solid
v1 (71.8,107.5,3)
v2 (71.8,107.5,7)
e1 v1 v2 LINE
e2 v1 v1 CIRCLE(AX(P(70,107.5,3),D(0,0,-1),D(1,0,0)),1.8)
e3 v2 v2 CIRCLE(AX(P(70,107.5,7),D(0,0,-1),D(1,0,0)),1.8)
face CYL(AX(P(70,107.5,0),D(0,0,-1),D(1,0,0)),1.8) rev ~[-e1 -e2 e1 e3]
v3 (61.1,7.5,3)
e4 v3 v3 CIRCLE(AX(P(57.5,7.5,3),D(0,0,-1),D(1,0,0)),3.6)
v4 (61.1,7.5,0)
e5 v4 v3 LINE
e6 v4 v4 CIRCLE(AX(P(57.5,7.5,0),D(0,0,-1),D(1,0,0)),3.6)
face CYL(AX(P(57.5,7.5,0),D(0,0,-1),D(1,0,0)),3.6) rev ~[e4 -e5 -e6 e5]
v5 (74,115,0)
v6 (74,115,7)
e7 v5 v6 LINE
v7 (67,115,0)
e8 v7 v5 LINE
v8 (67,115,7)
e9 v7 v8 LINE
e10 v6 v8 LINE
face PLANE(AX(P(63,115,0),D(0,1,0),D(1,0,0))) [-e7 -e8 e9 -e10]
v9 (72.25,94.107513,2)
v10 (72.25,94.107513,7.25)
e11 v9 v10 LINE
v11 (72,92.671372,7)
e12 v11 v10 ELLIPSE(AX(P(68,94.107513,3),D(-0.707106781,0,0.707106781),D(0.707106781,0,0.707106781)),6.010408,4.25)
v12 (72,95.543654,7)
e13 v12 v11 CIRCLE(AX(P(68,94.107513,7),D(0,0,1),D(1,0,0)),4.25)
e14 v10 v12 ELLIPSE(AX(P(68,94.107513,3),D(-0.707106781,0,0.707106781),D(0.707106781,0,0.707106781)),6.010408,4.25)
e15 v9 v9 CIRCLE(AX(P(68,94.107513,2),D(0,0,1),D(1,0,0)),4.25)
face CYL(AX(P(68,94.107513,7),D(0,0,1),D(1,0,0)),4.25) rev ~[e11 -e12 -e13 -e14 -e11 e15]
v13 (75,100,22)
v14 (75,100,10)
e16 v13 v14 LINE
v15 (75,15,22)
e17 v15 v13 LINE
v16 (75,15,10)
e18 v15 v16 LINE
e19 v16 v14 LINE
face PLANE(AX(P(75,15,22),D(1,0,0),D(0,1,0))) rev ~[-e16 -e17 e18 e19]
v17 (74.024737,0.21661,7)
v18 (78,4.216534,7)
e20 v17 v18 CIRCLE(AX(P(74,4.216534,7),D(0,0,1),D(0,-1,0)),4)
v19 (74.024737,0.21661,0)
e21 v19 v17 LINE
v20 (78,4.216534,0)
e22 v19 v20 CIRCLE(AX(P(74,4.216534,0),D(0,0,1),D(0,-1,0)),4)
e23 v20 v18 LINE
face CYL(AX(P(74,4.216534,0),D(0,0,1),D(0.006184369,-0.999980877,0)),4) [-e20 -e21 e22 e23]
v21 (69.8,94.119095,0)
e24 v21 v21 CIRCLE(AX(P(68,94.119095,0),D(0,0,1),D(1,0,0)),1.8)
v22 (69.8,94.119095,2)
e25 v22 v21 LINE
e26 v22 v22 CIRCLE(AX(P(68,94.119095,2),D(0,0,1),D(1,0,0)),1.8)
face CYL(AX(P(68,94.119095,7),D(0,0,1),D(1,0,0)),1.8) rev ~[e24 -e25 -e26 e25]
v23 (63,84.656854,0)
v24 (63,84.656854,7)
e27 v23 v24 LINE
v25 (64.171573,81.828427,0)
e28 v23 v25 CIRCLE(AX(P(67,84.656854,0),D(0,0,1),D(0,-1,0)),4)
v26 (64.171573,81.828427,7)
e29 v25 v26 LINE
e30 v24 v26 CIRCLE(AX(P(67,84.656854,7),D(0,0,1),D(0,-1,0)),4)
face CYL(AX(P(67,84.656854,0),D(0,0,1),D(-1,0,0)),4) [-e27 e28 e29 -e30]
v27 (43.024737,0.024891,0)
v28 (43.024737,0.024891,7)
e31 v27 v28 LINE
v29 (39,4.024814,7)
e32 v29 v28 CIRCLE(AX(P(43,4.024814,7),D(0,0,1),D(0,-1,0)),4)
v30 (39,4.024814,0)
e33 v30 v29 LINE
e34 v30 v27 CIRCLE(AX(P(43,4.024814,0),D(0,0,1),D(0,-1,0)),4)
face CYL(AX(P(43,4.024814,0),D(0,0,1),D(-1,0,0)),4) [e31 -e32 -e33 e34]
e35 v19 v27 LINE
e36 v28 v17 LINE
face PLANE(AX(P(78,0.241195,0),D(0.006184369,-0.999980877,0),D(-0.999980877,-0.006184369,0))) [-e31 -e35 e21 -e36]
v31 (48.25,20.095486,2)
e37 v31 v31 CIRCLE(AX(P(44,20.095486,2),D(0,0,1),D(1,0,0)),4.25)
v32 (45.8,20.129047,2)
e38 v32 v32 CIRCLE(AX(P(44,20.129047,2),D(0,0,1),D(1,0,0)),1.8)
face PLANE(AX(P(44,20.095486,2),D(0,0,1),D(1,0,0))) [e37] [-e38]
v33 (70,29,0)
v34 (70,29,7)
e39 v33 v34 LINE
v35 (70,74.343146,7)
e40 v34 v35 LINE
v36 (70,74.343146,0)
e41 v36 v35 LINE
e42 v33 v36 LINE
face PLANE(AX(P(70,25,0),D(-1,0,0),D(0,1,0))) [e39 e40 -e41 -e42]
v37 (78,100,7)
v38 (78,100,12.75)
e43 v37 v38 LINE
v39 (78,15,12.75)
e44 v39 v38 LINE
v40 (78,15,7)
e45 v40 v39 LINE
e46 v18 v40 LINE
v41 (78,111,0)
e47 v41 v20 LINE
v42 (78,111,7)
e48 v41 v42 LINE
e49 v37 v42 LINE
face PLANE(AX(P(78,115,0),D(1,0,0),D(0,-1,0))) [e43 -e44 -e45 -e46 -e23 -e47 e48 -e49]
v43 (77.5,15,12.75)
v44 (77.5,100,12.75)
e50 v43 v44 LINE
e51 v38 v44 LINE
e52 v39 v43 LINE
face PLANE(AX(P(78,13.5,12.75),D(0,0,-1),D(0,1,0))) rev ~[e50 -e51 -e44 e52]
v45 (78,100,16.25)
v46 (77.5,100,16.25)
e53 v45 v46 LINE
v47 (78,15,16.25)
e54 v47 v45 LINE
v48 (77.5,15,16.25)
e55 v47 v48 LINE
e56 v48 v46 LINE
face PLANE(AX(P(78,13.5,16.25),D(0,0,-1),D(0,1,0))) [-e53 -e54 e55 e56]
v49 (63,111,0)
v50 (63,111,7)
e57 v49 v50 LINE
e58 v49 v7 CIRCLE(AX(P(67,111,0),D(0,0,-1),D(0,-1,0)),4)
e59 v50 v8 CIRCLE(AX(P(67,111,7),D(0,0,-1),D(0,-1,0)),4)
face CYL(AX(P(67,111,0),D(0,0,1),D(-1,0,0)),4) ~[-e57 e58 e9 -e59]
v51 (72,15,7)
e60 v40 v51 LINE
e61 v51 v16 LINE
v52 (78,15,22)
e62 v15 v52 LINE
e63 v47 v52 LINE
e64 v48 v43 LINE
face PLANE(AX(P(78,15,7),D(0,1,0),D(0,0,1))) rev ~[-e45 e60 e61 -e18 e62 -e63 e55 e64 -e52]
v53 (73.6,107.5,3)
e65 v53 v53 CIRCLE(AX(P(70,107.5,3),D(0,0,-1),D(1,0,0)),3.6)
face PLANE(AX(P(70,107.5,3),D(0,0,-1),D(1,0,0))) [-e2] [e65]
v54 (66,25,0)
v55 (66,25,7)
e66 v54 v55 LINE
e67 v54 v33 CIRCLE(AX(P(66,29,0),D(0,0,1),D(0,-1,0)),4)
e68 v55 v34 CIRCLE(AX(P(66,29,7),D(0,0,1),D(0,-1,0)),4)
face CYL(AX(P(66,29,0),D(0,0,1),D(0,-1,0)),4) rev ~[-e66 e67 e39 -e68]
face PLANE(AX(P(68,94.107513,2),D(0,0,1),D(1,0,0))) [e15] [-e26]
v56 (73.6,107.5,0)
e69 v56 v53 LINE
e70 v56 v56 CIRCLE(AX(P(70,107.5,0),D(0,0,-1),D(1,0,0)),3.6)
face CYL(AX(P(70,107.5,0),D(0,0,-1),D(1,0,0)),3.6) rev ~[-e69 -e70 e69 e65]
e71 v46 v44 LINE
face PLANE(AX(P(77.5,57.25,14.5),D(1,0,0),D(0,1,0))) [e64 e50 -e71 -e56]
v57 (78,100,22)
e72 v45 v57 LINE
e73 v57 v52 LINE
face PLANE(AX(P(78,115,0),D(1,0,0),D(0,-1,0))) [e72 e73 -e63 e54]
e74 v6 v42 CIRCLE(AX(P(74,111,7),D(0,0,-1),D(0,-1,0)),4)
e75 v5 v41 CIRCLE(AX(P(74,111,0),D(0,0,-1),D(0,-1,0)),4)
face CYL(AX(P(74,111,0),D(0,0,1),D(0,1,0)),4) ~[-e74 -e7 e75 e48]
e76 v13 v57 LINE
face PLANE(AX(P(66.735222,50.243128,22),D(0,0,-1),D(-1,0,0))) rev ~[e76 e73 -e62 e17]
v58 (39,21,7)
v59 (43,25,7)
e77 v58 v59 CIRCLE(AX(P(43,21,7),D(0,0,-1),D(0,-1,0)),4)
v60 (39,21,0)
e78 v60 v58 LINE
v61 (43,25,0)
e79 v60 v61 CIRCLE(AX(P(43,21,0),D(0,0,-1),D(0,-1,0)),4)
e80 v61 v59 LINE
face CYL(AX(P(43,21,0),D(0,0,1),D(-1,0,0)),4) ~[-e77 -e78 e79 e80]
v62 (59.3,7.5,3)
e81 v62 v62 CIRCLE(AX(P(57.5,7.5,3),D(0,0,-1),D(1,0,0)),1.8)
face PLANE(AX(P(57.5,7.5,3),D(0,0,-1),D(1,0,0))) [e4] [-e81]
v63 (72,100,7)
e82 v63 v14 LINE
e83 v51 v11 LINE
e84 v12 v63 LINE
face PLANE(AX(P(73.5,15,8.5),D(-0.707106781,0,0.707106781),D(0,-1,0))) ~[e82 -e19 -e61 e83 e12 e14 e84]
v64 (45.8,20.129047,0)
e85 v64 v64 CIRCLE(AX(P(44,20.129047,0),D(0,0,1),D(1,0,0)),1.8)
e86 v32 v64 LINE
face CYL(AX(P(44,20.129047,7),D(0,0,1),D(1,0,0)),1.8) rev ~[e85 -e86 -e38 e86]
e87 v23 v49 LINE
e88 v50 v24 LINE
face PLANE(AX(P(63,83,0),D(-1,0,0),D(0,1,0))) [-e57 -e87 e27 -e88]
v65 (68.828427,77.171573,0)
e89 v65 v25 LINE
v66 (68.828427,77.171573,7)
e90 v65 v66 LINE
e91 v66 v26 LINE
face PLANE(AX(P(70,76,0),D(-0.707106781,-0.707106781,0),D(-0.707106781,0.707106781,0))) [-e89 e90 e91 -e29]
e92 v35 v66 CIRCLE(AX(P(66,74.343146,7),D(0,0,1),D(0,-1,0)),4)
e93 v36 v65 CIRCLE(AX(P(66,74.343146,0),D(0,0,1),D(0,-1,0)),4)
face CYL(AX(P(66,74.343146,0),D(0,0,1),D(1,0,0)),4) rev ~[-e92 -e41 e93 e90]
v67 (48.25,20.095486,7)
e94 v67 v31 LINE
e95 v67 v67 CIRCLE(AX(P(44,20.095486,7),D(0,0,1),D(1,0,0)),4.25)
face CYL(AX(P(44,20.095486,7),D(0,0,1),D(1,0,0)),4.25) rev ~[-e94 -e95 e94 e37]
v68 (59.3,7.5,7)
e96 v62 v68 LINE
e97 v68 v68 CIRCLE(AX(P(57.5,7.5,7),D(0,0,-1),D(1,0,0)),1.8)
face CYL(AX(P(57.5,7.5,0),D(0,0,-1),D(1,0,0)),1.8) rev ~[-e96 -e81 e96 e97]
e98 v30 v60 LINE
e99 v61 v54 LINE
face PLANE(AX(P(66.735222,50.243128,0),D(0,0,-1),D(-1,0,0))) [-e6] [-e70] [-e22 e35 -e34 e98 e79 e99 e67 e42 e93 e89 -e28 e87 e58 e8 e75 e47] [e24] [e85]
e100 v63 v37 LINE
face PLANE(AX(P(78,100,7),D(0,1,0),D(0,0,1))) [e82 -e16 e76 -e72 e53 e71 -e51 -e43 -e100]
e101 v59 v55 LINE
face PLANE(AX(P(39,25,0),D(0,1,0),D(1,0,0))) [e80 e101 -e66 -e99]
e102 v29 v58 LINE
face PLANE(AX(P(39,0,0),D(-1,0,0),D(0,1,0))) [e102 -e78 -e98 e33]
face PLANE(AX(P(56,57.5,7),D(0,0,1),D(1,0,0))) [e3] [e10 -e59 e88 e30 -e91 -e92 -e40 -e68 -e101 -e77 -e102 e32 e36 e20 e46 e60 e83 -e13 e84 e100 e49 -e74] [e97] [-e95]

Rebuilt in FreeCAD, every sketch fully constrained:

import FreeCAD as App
import Part
import Sketcher
Q = App.Units.Quantity


def edges_at(feature, points):
    """Names of the edges that pass closest to the given points."""
    edges = feature.Shape.Edges
    near = lambda p: min(range(len(edges)), key=lambda i: edges[i].distToShape(Part.Vertex(*p))[0])
    return sorted({f"Edge{near(p) + 1}" for p in points})

doc = App.newDocument("Part")
params = doc.addObject("Spreadsheet::Sheet", "Params")
for row, (alias, value) in enumerate([
    ("sketch1_width", "15 mm"),
    ("sketch1_width2", "31 mm"),
    ("sketch1_height", "25 mm"),
    ("sketch1_height2", "32 mm"),
    ("sketch1_height3", "51 mm"),
    ("pad1_length", "22 mm"),
    ("sketch2_width", "16 mm"),
    ("sketch3_width", "38 mm"),
    ("sketch3_height", "85 mm"),
    ("pocket2_length", "15 mm"),
    ("sketch4_diameter", "3.6 mm"),
    ("sketch5_diameter", "7.2 mm"),
    ("pocket4_length", "3 mm"),
    ("fillet_radius", "4 mm"),
    ("fillet2_radius", "4 mm"),
    ("sketch6_width", "87.5 mm"),
    ("sketch6_height", "3.5 mm"),
    ("pocket5_length", "0.5 mm"),
    ("sketch7_diameter", "3.6 mm"),
    ("sketch8_diameter", "7.2 mm"),
    ("pocket7_length", "3 mm"),
    ("fillet3_radius", "4 mm"),
    ("chamfer_size", "3 mm"),
    ("sketch9_diameter", "8.5 mm"),
    ("pocket8_length", "10 mm"),
], start=1):
    params.set(f"A{row}", alias)
    params.set(f"B{row}", "=" + value)
    params.setAlias(f"B{row}", alias)

body = doc.addObject("PartDesign::Body", "Body")

# Sketch on XY plane
sketch1 = doc.addObject("Sketcher::SketchObject", "Sketch")
body.addObject(sketch1)
sketch1.AttachmentSupport = (doc.XY_Plane, [""])
sketch1.MapMode = "FlatFace"
sketch1.addGeometry([
    Part.LineSegment(App.Vector(39, 25, 0), App.Vector(39, 0, 0)),  # 0
    Part.LineSegment(App.Vector(39, 0, 0), App.Vector(78, 0, 0)),  # 1
    Part.LineSegment(App.Vector(78, 0, 0), App.Vector(78, 115, 0)),  # 2
    Part.LineSegment(App.Vector(78, 115, 0), App.Vector(63, 115, 0)),  # 3
    Part.LineSegment(App.Vector(63, 115, 0), App.Vector(63, 83, 0)),  # 4
    Part.LineSegment(App.Vector(63, 83, 0), App.Vector(70, 76, 0)),  # 5
    Part.LineSegment(App.Vector(70, 76, 0), App.Vector(70, 25, 0)),  # 6
    Part.LineSegment(App.Vector(70, 25, 0), App.Vector(39, 25, 0)),  # 7
], False)
sketch1.addConstraint([
    Sketcher.Constraint("Coincident", 0, 2, 1, 1),
    Sketcher.Constraint("Coincident", 1, 2, 2, 1),
    Sketcher.Constraint("Coincident", 2, 2, 3, 1),
    Sketcher.Constraint("Coincident", 3, 2, 4, 1),
    Sketcher.Constraint("Coincident", 4, 2, 5, 1),
    Sketcher.Constraint("Coincident", 5, 2, 6, 1),
    Sketcher.Constraint("Coincident", 6, 2, 7, 1),
    Sketcher.Constraint("Coincident", 7, 2, 0, 1),
    Sketcher.Constraint("Vertical", 0),
    Sketcher.Constraint("Vertical", 2),
    Sketcher.Constraint("Horizontal", 3),
    Sketcher.Constraint("Vertical", 4),
    Sketcher.Constraint("Vertical", 6),
    Sketcher.Constraint("Horizontal", 7),
    Sketcher.Constraint("PointOnObject", 0, 2, -1),
    Sketcher.Constraint("DistanceX", 3, 2, 3, 1, Q("15 mm")),
    Sketcher.Constraint("DistanceX", 7, 2, 7, 1, Q("31 mm")),
    Sketcher.Constraint("DistanceY", 0, 2, 0, 1, Q("25 mm")),
    Sketcher.Constraint("DistanceY", 4, 2, 4, 1, Q("32 mm")),
    Sketcher.Constraint("DistanceY", 6, 2, 6, 1, Q("51 mm")),
    Sketcher.Constraint("Angle", 5, Q("-45 deg")),
    Sketcher.Constraint("DistanceX", -1, 1, 0, 2, Q("39 mm")),
    Sketcher.Constraint("DistanceX", -1, 1, 1, 2, Q("78 mm")),
    Sketcher.Constraint("DistanceY", 2, 1, 2, 2, Q("114.758805 mm")),
])
sketch1.setExpression("Constraints[15]", "Params.sketch1_width")
sketch1.setExpression("Constraints[16]", "Params.sketch1_width2")
sketch1.setExpression("Constraints[17]", "Params.sketch1_height")
sketch1.setExpression("Constraints[18]", "Params.sketch1_height2")
sketch1.setExpression("Constraints[19]", "Params.sketch1_height3")
pad1 = doc.addObject("PartDesign::Pad", "Pad")
body.addObject(pad1)
pad1.Profile = sketch1
pad1.setExpression("Length", "Params.pad1_length")

# Sketch on YZ plane
sketch2 = doc.addObject("Sketcher::SketchObject", "Sketch001")
body.addObject(sketch2)
sketch2.AttachmentSupport = (doc.YZ_Plane, [""])
sketch2.MapMode = "FlatFace"
sketch2.AttachmentOffset = App.Placement(App.Vector(0, 0, 78), App.Rotation())
sketch2.addGeometry([
    Part.LineSegment(App.Vector(-1, 23, 0), App.Vector(-1, 7, 0)),  # 0
    Part.LineSegment(App.Vector(-1, 7, 0), App.Vector(15, 7, 0)),  # 1
    Part.LineSegment(App.Vector(15, 7, 0), App.Vector(15, 23, 0)),  # 2
    Part.LineSegment(App.Vector(15, 23, 0), App.Vector(-1, 23, 0)),  # 3
    Part.LineSegment(App.Vector(100, 23, 0), App.Vector(100, 7, 0)),  # 4
    Part.LineSegment(App.Vector(100, 7, 0), App.Vector(116, 7, 0)),  # 5
    Part.LineSegment(App.Vector(116, 7, 0), App.Vector(116, 23, 0)),  # 6
    Part.LineSegment(App.Vector(116, 23, 0), App.Vector(100, 23, 0)),  # 7
], False)
sketch2.addConstraint([
    Sketcher.Constraint("Coincident", 0, 2, 1, 1),
    Sketcher.Constraint("Coincident", 1, 2, 2, 1),
    Sketcher.Constraint("Coincident", 2, 2, 3, 1),
    Sketcher.Constraint("Coincident", 3, 2, 0, 1),
    Sketcher.Constraint("Coincident", 4, 2, 5, 1),
    Sketcher.Constraint("Coincident", 5, 2, 6, 1),
    Sketcher.Constraint("Coincident", 6, 2, 7, 1),
    Sketcher.Constraint("Coincident", 7, 2, 4, 1),
    Sketcher.Constraint("Vertical", 0),
    Sketcher.Constraint("Horizontal", 1),
    Sketcher.Constraint("Vertical", 2),
    Sketcher.Constraint("Horizontal", 3),
    Sketcher.Constraint("Vertical", 4),
    Sketcher.Constraint("Horizontal", 5),
    Sketcher.Constraint("Vertical", 6),
    Sketcher.Constraint("Horizontal", 7),
    Sketcher.Constraint("Horizontal", 1, 2, 4, 2),
    Sketcher.Constraint("Horizontal", 3, 2, 6, 2),
    Sketcher.Constraint("Equal", 3, 5),
    Sketcher.Constraint("Equal", 7, 0),
    Sketcher.Constraint("DistanceX", 1, 1, 1, 2, Q("16 mm")),
    Sketcher.Constraint("DistanceX", 0, 2, -1, 1, Q("1 mm")),
    Sketcher.Constraint("DistanceY", -1, 1, 0, 2, Q("7 mm")),
    Sketcher.Constraint("DistanceX", -1, 1, 4, 2, Q("100 mm")),
])
sketch2.setExpression("Constraints[20]", "Params.sketch2_width")
pocket1 = doc.addObject("PartDesign::Pocket", "Pocket")
body.addObject(pocket1)
pocket1.Profile = sketch2
pocket1.Type = "ThroughAll"

# Sketch on XY plane
sketch3 = doc.addObject("Sketcher::SketchObject", "Sketch002")
body.addObject(sketch3)
sketch3.AttachmentSupport = (doc.XY_Plane, [""])
sketch3.MapMode = "FlatFace"
sketch3.AttachmentOffset = App.Placement(App.Vector(0, 0, 22), App.Rotation())
sketch3.addGeometry([
    Part.LineSegment(App.Vector(37, 100, 0), App.Vector(37, 15, 0)),
    Part.LineSegment(App.Vector(37, 15, 0), App.Vector(75, 15, 0)),
    Part.LineSegment(App.Vector(75, 15, 0), App.Vector(75, 100, 0)),
    Part.LineSegment(App.Vector(75, 100, 0), App.Vector(37, 100, 0)),
], False)
sketch3.addConstraint([
    Sketcher.Constraint("Coincident", 0, 2, 1, 1),
    Sketcher.Constraint("Coincident", 1, 2, 2, 1),
    Sketcher.Constraint("Coincident", 2, 2, 3, 1),
    Sketcher.Constraint("Coincident", 3, 2, 0, 1),
    Sketcher.Constraint("Vertical", 0),
    Sketcher.Constraint("Horizontal", 1),
    Sketcher.Constraint("Vertical", 2),
    Sketcher.Constraint("Horizontal", 3),
    Sketcher.Constraint("DistanceX", 1, 1, 1, 2, Q("38 mm")),
    Sketcher.Constraint("DistanceY", 0, 2, 0, 1, Q("85 mm")),
    Sketcher.Constraint("DistanceX", -1, 1, 0, 2, Q("37 mm")),
    Sketcher.Constraint("DistanceY", -1, 1, 0, 2, Q("15 mm")),
])
sketch3.setExpression("Constraints[8]", "Params.sketch3_width")
sketch3.setExpression("Constraints[9]", "Params.sketch3_height")
pocket2 = doc.addObject("PartDesign::Pocket", "Pocket001")
body.addObject(pocket2)
pocket2.Profile = sketch3
pocket2.setExpression("Length", "Params.pocket2_length")

# Sketch on XY plane
sketch4 = doc.addObject("Sketcher::SketchObject", "Sketch003")
body.addObject(sketch4)
sketch4.AttachmentSupport = (doc.XY_Plane, [""])
sketch4.MapMode = "FlatFace"
sketch4.AttachmentOffset = App.Placement(App.Vector(0, 0, 7), App.Rotation())
sketch4.addGeometry([
    Part.Circle(App.Vector(68, 94.1, 0), App.Vector(0, 0, 1), 1.8),
    Part.Circle(App.Vector(44, 20.1, 0), App.Vector(0, 0, 1), 1.8),
], False)
sketch4.addConstraint([
    Sketcher.Constraint("Equal", 0, 1),
    Sketcher.Constraint("Diameter", 0, Q("3.6 mm")),
    Sketcher.Constraint("DistanceX", -1, 1, 0, 3, Q("68 mm")),
    Sketcher.Constraint("DistanceX", -1, 1, 1, 3, Q("44 mm")),
    Sketcher.Constraint("DistanceY", 1, 3, 0, 3, Q("73.990048 mm")),
    Sketcher.Constraint("DistanceY", -1, 1, 0, 3, Q("94.119095 mm")),
])
sketch4.setExpression("Constraints[1]", "Params.sketch4_diameter")
pocket3 = doc.addObject("PartDesign::Pocket", "Pocket002")
body.addObject(pocket3)
pocket3.Profile = sketch4
pocket3.Type = "ThroughAll"

# Sketch on XY plane
sketch5 = doc.addObject("Sketcher::SketchObject", "Sketch004")
body.addObject(sketch5)
sketch5.AttachmentSupport = (doc.XY_Plane, [""])
sketch5.MapMode = "FlatFace"
sketch5.AttachmentOffset = App.Placement(App.Vector(0, 0, 7), App.Rotation())
sketch5.addGeometry([
    Part.Circle(App.Vector(68, 94.1, 0), App.Vector(0, 0, 1), 3.6),
    Part.Circle(App.Vector(44, 20.1, 0), App.Vector(0, 0, 1), 3.6),
], False)
sketch5.addConstraint([
    Sketcher.Constraint("Equal", 0, 1),
    Sketcher.Constraint("Diameter", 0, Q("7.2 mm")),
    Sketcher.Constraint("DistanceX", -1, 1, 0, 3, Q("68 mm")),
    Sketcher.Constraint("DistanceX", -1, 1, 1, 3, Q("44 mm")),
    Sketcher.Constraint("DistanceY", -1, 1, 0, 3, Q("94.116013 mm")),
    Sketcher.Constraint("DistanceY", -1, 1, 1, 3, Q("20.124216 mm")),
])
sketch5.setExpression("Constraints[1]", "Params.sketch5_diameter")
pocket4 = doc.addObject("PartDesign::Pocket", "Pocket003")
body.addObject(pocket4)
pocket4.Profile = sketch5
pocket4.setExpression("Length", "Params.pocket4_length")
doc.recompute()

fillet = doc.addObject("PartDesign::Fillet", "Fillet")
body.addObject(fillet)
fillet.Base = (pocket4, edges_at(pocket4, [(39, 25, 3.5), (70, 25, 3.5)]))
fillet.setExpression("Radius", "Params.fillet_radius")
doc.recompute()

fillet2 = doc.addObject("PartDesign::Fillet", "Fillet001")
body.addObject(fillet2)
fillet2.Base = (fillet, edges_at(fillet, [(63, 83, 3.5), (70, 76, 3.5)]))
fillet2.setExpression("Radius", "Params.fillet2_radius")

# Sketch on YZ plane
sketch6 = doc.addObject("Sketcher::SketchObject", "Sketch005")
body.addObject(sketch6)
sketch6.AttachmentSupport = (doc.YZ_Plane, [""])
sketch6.MapMode = "FlatFace"
sketch6.AttachmentOffset = App.Placement(App.Vector(0, 0, 78), App.Rotation())
sketch6.addGeometry([
    Part.LineSegment(App.Vector(13.5, 16.2, 0), App.Vector(13.5, 12.8, 0)),
    Part.LineSegment(App.Vector(13.5, 12.8, 0), App.Vector(101, 12.8, 0)),
    Part.LineSegment(App.Vector(101, 12.8, 0), App.Vector(101, 16.2, 0)),
    Part.LineSegment(App.Vector(101, 16.2, 0), App.Vector(13.5, 16.2, 0)),
], False)
sketch6.addConstraint([
    Sketcher.Constraint("Coincident", 0, 2, 1, 1),
    Sketcher.Constraint("Coincident", 1, 2, 2, 1),
    Sketcher.Constraint("Coincident", 2, 2, 3, 1),
    Sketcher.Constraint("Coincident", 3, 2, 0, 1),
    Sketcher.Constraint("Vertical", 0),
    Sketcher.Constraint("Horizontal", 1),
    Sketcher.Constraint("Vertical", 2),
    Sketcher.Constraint("Horizontal", 3),
    Sketcher.Constraint("DistanceX", 1, 1, 1, 2, Q("87.5 mm")),
    Sketcher.Constraint("DistanceY", 0, 2, 0, 1, Q("3.5 mm")),
    Sketcher.Constraint("DistanceX", -1, 1, 1, 2, Q("101 mm")),
    Sketcher.Constraint("DistanceY", -1, 1, 0, 2, Q("12.75 mm")),
])
sketch6.setExpression("Constraints[8]", "Params.sketch6_width")
sketch6.setExpression("Constraints[9]", "Params.sketch6_height")
pocket5 = doc.addObject("PartDesign::Pocket", "Pocket004")
body.addObject(pocket5)
pocket5.Profile = sketch6
pocket5.setExpression("Length", "Params.pocket5_length")

# Sketch on XY plane
sketch7 = doc.addObject("Sketcher::SketchObject", "Sketch006")
body.addObject(sketch7)
sketch7.AttachmentSupport = (doc.XY_Plane, [""])
sketch7.MapMode = "FlatFace"
sketch7.addGeometry([
    Part.Circle(App.Vector(70, 107.5, 0), App.Vector(0, 0, 1), 1.8),
    Part.Circle(App.Vector(57.5, 7.5, 0), App.Vector(0, 0, 1), 1.8),
], False)
sketch7.addConstraint([
    Sketcher.Constraint("Equal", 0, 1),
    Sketcher.Constraint("Diameter", 0, Q("3.6 mm")),
    Sketcher.Constraint("DistanceX", -1, 1, 0, 3, Q("70 mm")),
    Sketcher.Constraint("DistanceY", 1, 3, 0, 3, Q("100 mm")),
    Sketcher.Constraint("DistanceY", -1, 1, 0, 3, Q("107.5 mm")),
    Sketcher.Constraint("DistanceX", -1, 1, 1, 3, Q("57.5 mm")),
])
sketch7.setExpression("Constraints[1]", "Params.sketch7_diameter")
pocket6 = doc.addObject("PartDesign::Pocket", "Pocket005")
body.addObject(pocket6)
pocket6.Profile = sketch7
pocket6.Type = "ThroughAll"
pocket6.Reversed = True

# Sketch on XY plane
sketch8 = doc.addObject("Sketcher::SketchObject", "Sketch007")
body.addObject(sketch8)
sketch8.AttachmentSupport = (doc.XY_Plane, [""])
sketch8.MapMode = "FlatFace"
sketch8.addGeometry([
    Part.Circle(App.Vector(57.5, 7.5, 0), App.Vector(0, 0, 1), 3.6),
    Part.Circle(App.Vector(70, 107.5, 0), App.Vector(0, 0, 1), 3.6),
], False)
sketch8.addConstraint([
    Sketcher.Constraint("Equal", 0, 1),
    Sketcher.Constraint("Diameter", 0, Q("7.2 mm")),
    Sketcher.Constraint("DistanceX", -1, 1, 1, 3, Q("70 mm")),
    Sketcher.Constraint("DistanceY", 0, 3, 1, 3, Q("100 mm")),
    Sketcher.Constraint("DistanceX", -1, 1, 0, 3, Q("57.5 mm")),
    Sketcher.Constraint("DistanceY", -1, 1, 0, 3, Q("7.5 mm")),
])
sketch8.setExpression("Constraints[1]", "Params.sketch8_diameter")
pocket7 = doc.addObject("PartDesign::Pocket", "Pocket006")
body.addObject(pocket7)
pocket7.Profile = sketch8
pocket7.setExpression("Length", "Params.pocket7_length")
pocket7.Reversed = True
doc.recompute()

fillet3 = doc.addObject("PartDesign::Fillet", "Fillet002")
body.addObject(fillet3)
fillet3.Base = (pocket7, edges_at(pocket7, [
    (39, 0, 3.5),
    (78, 0.241, 3.5),
    (78, 115, 3.5),
    (63, 115, 3.5),
]))
fillet3.setExpression("Radius", "Params.fillet3_radius")
doc.recompute()

chamfer = doc.addObject("PartDesign::Chamfer", "Chamfer")
body.addObject(chamfer)
chamfer.Base = (fillet3, edges_at(fillet3, [(75, 57.5, 7)]))
chamfer.setExpression("Size", "Params.chamfer_size")

# Sketch on XY plane
sketch9 = doc.addObject("Sketcher::SketchObject", "Sketch008")
body.addObject(sketch9)
sketch9.AttachmentSupport = (doc.XY_Plane, [""])
sketch9.MapMode = "FlatFace"
sketch9.AttachmentOffset = App.Placement(App.Vector(0, 0, 7), App.Rotation())
sketch9.addGeometry([
    Part.Circle(App.Vector(44, 20.1, 0), App.Vector(0, 0, 1), 4.2),
    Part.Circle(App.Vector(68, 94.1, 0), App.Vector(0, 0, 1), 4.2),
], False)
sketch9.addConstraint([
    Sketcher.Constraint("Equal", 0, 1),
    Sketcher.Constraint("Diameter", 0, Q("8.5 mm")),
    Sketcher.Constraint("DistanceX", -1, 1, 0, 3, Q("44 mm")),
    Sketcher.Constraint("DistanceX", -1, 1, 1, 3, Q("68 mm")),
    Sketcher.Constraint("DistanceY", -1, 1, 0, 3, Q("20.095486 mm")),
    Sketcher.Constraint("DistanceY", -1, 1, 1, 3, Q("94.107513 mm")),
])
sketch9.setExpression("Constraints[1]", "Params.sketch9_diameter")
pocket8 = doc.addObject("PartDesign::Pocket", "Pocket007")
body.addObject(pocket8)
pocket8.Profile = sketch9
pocket8.setExpression("Length", "Params.pocket8_length")
pocket8.Midplane = True

doc.recompute()
